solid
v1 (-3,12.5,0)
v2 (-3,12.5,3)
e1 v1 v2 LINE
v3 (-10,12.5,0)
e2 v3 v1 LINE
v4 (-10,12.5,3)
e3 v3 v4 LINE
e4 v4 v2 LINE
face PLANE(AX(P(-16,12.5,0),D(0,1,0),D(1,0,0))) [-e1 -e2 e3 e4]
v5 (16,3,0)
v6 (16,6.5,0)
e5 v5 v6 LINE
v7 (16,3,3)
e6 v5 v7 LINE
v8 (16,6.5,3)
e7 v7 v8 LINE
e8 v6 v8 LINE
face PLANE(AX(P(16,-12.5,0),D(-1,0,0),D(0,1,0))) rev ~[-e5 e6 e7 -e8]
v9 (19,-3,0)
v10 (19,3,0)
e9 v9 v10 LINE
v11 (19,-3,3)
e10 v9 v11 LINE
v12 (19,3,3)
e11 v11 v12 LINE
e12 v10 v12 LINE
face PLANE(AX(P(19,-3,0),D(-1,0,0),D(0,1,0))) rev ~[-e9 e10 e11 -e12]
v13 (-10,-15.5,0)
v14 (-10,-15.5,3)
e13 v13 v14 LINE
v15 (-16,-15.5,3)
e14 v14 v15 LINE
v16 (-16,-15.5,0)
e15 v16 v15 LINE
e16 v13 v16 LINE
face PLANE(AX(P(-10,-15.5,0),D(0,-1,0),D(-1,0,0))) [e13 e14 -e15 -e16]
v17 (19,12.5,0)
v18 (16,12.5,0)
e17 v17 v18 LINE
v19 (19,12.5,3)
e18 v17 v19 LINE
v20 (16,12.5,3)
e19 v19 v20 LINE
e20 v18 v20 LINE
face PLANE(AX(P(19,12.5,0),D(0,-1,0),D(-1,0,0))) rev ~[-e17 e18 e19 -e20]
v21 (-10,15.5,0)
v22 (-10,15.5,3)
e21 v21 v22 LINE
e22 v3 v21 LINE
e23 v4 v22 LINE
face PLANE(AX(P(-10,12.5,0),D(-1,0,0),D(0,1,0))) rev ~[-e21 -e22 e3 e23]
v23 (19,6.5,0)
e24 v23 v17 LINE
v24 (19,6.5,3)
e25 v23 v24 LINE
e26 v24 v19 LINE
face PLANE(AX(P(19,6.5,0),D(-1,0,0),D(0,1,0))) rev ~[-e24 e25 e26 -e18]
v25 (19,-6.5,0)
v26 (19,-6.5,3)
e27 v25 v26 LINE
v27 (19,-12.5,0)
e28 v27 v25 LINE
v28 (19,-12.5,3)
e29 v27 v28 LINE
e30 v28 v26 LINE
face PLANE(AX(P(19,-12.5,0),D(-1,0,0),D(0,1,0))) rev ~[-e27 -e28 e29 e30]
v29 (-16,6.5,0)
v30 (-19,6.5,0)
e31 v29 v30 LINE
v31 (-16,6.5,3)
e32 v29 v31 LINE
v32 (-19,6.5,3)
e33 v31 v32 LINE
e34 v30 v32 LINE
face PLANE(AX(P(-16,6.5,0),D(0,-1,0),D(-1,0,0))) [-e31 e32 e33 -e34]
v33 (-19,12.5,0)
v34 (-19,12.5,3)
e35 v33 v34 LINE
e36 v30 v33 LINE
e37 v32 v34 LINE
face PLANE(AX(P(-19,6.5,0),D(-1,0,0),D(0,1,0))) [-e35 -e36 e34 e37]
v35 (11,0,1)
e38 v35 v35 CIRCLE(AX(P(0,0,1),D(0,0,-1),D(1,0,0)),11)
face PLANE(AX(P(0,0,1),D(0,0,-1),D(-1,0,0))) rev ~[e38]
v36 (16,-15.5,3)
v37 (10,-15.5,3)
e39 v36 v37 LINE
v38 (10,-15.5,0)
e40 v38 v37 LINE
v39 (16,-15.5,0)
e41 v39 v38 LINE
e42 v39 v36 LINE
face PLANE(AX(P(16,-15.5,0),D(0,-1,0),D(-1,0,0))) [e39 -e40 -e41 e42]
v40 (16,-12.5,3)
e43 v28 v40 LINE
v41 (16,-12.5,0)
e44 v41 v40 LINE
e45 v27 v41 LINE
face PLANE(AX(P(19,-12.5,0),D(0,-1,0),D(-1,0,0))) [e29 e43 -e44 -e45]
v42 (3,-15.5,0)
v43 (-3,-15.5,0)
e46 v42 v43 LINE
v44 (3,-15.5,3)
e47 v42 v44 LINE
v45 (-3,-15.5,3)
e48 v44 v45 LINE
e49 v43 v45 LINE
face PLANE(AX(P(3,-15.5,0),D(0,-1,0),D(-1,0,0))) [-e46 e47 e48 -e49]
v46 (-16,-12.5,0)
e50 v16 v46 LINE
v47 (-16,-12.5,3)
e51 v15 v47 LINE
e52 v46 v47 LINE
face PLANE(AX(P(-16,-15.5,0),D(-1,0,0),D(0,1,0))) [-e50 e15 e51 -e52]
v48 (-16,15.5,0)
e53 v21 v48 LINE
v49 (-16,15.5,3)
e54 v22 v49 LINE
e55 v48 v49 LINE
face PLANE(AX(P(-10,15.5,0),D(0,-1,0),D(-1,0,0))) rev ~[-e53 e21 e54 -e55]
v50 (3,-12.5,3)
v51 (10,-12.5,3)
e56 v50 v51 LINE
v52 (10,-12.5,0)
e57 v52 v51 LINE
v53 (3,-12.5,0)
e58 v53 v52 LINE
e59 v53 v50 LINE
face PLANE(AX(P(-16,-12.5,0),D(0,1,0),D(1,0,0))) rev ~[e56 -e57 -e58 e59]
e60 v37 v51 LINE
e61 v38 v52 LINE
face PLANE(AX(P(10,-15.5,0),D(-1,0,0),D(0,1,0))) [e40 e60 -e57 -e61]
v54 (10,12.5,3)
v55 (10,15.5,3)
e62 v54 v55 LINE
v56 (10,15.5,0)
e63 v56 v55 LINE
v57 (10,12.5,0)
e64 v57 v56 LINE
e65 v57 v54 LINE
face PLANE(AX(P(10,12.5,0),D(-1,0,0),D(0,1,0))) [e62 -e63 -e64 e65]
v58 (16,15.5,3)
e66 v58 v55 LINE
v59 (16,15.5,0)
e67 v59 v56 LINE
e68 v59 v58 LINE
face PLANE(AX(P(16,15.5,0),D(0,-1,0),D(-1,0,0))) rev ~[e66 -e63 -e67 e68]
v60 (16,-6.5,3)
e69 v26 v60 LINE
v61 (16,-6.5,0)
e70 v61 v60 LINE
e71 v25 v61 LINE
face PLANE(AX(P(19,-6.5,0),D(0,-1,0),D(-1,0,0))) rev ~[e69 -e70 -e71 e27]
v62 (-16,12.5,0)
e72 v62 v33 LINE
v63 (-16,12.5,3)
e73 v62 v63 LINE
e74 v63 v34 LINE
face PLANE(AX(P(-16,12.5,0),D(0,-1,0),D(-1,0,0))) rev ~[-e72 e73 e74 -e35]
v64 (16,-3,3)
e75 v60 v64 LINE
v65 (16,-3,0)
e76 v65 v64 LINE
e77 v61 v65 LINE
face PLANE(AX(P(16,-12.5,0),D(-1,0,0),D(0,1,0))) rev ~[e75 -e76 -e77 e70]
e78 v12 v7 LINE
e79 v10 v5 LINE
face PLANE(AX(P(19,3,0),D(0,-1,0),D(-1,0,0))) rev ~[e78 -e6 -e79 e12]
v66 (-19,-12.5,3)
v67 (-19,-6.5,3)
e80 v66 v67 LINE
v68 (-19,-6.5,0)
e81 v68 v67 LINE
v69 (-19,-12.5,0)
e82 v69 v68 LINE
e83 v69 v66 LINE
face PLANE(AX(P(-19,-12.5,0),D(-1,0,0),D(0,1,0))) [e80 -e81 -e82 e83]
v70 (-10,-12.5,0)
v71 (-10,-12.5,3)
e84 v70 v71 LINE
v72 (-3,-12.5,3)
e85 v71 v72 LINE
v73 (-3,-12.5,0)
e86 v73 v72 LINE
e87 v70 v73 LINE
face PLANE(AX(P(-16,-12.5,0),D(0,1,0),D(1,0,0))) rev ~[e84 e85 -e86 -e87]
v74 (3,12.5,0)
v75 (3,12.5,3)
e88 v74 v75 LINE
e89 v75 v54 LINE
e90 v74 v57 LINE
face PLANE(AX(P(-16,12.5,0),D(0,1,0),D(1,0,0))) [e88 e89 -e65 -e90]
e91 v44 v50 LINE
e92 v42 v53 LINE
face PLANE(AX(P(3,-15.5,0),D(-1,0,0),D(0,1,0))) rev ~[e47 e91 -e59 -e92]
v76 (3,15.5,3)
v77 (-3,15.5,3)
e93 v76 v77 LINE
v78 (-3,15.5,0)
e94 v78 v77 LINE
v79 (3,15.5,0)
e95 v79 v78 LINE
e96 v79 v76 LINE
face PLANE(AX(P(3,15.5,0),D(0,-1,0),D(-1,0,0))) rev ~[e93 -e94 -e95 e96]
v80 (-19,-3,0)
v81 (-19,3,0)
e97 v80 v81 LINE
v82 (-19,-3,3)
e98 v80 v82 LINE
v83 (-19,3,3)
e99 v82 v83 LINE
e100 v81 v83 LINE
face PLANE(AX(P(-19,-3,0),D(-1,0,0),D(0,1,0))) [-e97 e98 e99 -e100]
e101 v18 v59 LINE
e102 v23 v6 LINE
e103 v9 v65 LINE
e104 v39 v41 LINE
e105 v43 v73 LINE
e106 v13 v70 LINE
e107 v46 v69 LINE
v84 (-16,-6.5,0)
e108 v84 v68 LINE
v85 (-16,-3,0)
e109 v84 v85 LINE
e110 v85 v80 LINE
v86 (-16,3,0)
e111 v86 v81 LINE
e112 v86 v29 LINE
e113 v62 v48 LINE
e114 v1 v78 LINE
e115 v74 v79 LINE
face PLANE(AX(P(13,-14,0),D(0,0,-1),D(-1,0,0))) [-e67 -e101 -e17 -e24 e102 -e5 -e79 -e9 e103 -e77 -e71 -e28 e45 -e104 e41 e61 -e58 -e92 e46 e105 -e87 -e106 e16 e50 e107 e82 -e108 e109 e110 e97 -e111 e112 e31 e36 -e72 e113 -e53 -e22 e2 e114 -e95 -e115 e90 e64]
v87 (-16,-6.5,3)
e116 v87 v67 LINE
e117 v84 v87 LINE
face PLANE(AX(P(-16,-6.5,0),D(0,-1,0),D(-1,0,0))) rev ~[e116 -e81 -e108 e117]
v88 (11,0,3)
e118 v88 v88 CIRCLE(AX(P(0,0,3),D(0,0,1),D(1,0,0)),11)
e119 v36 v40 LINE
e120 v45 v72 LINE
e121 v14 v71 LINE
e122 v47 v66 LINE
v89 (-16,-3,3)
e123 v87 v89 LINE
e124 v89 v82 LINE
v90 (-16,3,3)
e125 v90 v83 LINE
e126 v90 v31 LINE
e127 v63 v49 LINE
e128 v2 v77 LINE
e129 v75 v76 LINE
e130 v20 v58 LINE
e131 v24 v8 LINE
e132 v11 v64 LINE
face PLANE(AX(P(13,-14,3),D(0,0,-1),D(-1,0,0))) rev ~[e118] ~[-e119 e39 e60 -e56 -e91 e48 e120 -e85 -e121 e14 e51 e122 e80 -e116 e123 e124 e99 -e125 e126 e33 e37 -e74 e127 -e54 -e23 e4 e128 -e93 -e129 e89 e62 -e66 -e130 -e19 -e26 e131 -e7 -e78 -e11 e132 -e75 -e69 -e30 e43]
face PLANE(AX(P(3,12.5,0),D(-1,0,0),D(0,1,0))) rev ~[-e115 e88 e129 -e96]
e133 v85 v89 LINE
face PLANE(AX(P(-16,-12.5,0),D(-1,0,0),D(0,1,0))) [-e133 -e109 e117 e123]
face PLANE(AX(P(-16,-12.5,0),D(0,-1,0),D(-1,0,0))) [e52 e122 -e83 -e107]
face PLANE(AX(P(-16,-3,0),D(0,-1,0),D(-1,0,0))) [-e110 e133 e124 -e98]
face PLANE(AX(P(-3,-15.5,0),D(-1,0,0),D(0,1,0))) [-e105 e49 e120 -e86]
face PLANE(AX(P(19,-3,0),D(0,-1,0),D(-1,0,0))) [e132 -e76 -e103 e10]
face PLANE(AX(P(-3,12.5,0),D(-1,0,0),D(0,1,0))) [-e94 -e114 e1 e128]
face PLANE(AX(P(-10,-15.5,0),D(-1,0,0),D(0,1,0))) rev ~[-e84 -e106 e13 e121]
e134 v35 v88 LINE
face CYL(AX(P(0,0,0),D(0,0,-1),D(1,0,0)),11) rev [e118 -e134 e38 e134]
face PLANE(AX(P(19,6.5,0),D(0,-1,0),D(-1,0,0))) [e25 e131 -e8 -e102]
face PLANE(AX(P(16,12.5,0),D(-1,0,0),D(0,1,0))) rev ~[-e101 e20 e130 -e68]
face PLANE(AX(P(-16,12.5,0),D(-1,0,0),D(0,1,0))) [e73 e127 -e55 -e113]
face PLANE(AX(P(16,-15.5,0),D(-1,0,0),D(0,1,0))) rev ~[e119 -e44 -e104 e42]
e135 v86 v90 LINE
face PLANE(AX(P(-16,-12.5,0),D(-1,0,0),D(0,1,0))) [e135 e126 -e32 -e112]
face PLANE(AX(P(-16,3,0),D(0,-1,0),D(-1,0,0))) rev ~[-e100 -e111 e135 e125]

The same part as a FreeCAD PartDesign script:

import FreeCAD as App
import Part
import Sketcher
Q = App.Units.Quantity


def add_polygon(sketch, points):
    """Adds a closed chain of lines whose ends are joined by coincident constraints."""
    first, n = sketch.GeometryCount, len(points)
    for a, b in zip(points, points[1:] + points[:1]):
        sketch.addGeometry(Part.LineSegment(App.Vector(*a, 0), App.Vector(*b, 0)), False)
    for i in range(n):
        sketch.addConstraint(Sketcher.Constraint("Coincident", first + i, 2, first + (i + 1) % n, 1))

doc = App.newDocument("Part")
body = doc.addObject("PartDesign::Body", "Body")

# Sketch on XY plane
sketch1 = body.newObject("Sketcher::SketchObject", "Sketch")
sketch1.AttachmentSupport = (doc.getObject("XY_Plane"), [""])
sketch1.MapMode = "FlatFace"
add_polygon(sketch1, [(-16, 12), (-16, -12), (16, -12), (16, 12)])  # lines 0-3
sketch1.addGeometry(Part.Circle(App.Vector(0, 0, 0), App.Vector(0, 0, 1), 11), False)  # 4
sketch1.addConstraint([
    Sketcher.Constraint("Vertical", 0),
    Sketcher.Constraint("Horizontal", 1),
    Sketcher.Constraint("Vertical", 2),
    Sketcher.Constraint("Horizontal", 3),
    Sketcher.Constraint("Coincident", 4, 3, -1, 1),
    Sketcher.Constraint("Symmetric", 0, 2, 2, 2, -1, 1),
    Sketcher.Constraint("Diameter", 4, Q("22 mm")),
    Sketcher.Constraint("DistanceX", 1, 1, 1, 2, Q("32 mm")),
    Sketcher.Constraint("DistanceY", 0, 2, 0, 1, Q("25 mm")),
])
pad1 = body.newObject("PartDesign::Pad", "Pad")
pad1.Profile = sketch1
pad1.Length = 3

# Sketch on XY plane
sketch2 = body.newObject("Sketcher::SketchObject", "Sketch001")
sketch2.AttachmentSupport = (doc.getObject("XY_Plane"), [""])
sketch2.MapMode = "FlatFace"
sketch2.addGeometry(Part.Circle(App.Vector(0, 0, 0), App.Vector(0, 0, 1), 11), False)
sketch2.addConstraint([
    Sketcher.Constraint("Coincident", 0, 3, -1, 1),
    Sketcher.Constraint("Diameter", 0, Q("22 mm")),
])
pad2 = body.newObject("PartDesign::Pad", "Pad001")
pad2.Profile = sketch2
pad2.Length = 1

# Sketch on XY plane
sketch3 = body.newObject("Sketcher::SketchObject", "Sketch002")
sketch3.AttachmentSupport = (doc.getObject("XY_Plane"), [""])
sketch3.MapMode = "FlatFace"
add_polygon(sketch3, [(16, -12.5), (16, -15.5), (10, -15.5), (10, -12.5)])  # lines 0-3
add_polygon(sketch3, [(19, -6.5), (19, -12.5), (16, -12.5), (16, -6.5)])  # lines 4-7
add_polygon(sketch3, [(19, 3), (19, -3), (16, -3), (16, 3)])  # lines 8-11
add_polygon(sketch3, [(19, 12.5), (19, 6.5), (16, 6.5), (16, 12.5)])  # lines 12-15
add_polygon(sketch3, [(3, 15.5), (3, 12.5), (-3, 12.5), (-3, 15.5)])  # lines 16-19
add_polygon(sketch3, [(-10, 15.5), (-10, 12.5), (-16, 12.5), (-16, 15.5)])  # lines 20-23
add_polygon(sketch3, [(-16, 12.5), (-16, 6.5), (-19, 6.5), (-19, 12.5)])  # lines 24-27
add_polygon(sketch3, [(-16, 3), (-16, -3), (-19, -3), (-19, 3)])  # lines 28-31
add_polygon(sketch3, [(-16, -6.5), (-16, -12.5), (-19, -12.5), (-19, -6.5)])  # lines 32-35
add_polygon(sketch3, [(-10, -12.5), (-10, -15.5), (-16, -15.5), (-16, -12.5)])  # lines 36-39
add_polygon(sketch3, [(3, -12.5), (3, -15.5), (-3, -15.5), (-3, -12.5)])  # lines 40-43
add_polygon(sketch3, [(16, 15.5), (16, 12.5), (10, 12.5), (10, 15.5)])  # lines 44-47
sketch3.addConstraint([
    Sketcher.Constraint("Vertical", 0),
    Sketcher.Constraint("Horizontal", 1),
    Sketcher.Constraint("Vertical", 2),
    Sketcher.Constraint("Horizontal", 3),
    Sketcher.Constraint("Vertical", 4),
    Sketcher.Constraint("Horizontal", 5),
    Sketcher.Constraint("Vertical", 6),
    Sketcher.Constraint("Horizontal", 7),
    Sketcher.Constraint("Vertical", 8),
    Sketcher.Constraint("Horizontal", 9),
    Sketcher.Constraint("Vertical", 10),
    Sketcher.Constraint("Horizontal", 11),
    Sketcher.Constraint("Vertical", 12),
    Sketcher.Constraint("Horizontal", 13),
    Sketcher.Constraint("Vertical", 14),
    Sketcher.Constraint("Horizontal", 15),
    Sketcher.Constraint("Vertical", 16),
    Sketcher.Constraint("Horizontal", 17),
    Sketcher.Constraint("Vertical", 18),
    Sketcher.Constraint("Horizontal", 19),
    Sketcher.Constraint("Vertical", 20),
    Sketcher.Constraint("Horizontal", 21),
    Sketcher.Constraint("Vertical", 22),
    Sketcher.Constraint("Horizontal", 23),
    Sketcher.Constraint("Vertical", 24),
    Sketcher.Constraint("Horizontal", 25),
    Sketcher.Constraint("Vertical", 26),
    Sketcher.Constraint("Horizontal", 27),
    Sketcher.Constraint("Vertical", 28),
    Sketcher.Constraint("Horizontal", 29),
    Sketcher.Constraint("Vertical", 30),
    Sketcher.Constraint("Horizontal", 31),
    Sketcher.Constraint("Vertical", 32),
    Sketcher.Constraint("Horizontal", 33),
    Sketcher.Constraint("Vertical", 34),
    Sketcher.Constraint("Horizontal", 35),
    Sketcher.Constraint("Vertical", 36),
    Sketcher.Constraint("Horizontal", 37),
    Sketcher.Constraint("Vertical", 38),
    Sketcher.Constraint("Horizontal", 39),
    Sketcher.Constraint("Vertical", 40),
    Sketcher.Constraint("Horizontal", 41),
    Sketcher.Constraint("Vertical", 42),
    Sketcher.Constraint("Horizontal", 43),
    Sketcher.Constraint("Vertical", 44),
    Sketcher.Constraint("Horizontal", 45),
    Sketcher.Constraint("Vertical", 46),
    Sketcher.Constraint("Horizontal", 47),
    Sketcher.Constraint("Coincident", 5, 2, 3, 2),
    Sketcher.Constraint("Coincident", 27, 2, 21, 2),
    Sketcher.Constraint("Coincident", 38, 2, 32, 2),
    Sketcher.Constraint("Coincident", 44, 2, 14, 2),
    Sketcher.Constraint("Symmetric", 2, 2, 20, 2, -1, 1),
    Sketcher.Constraint("Symmetric", 0, 2, 22, 2, -1, 1),
    Sketcher.Constraint("Symmetric", 7, 2, 25, 2, -1, 1),
    Sketcher.Constraint("Symmetric", 10, 2, 28, 2, -1, 1),
    Sketcher.Constraint("Symmetric", 8, 2, 30, 2, -1, 1),
    Sketcher.Constraint("Symmetric", 14, 2, 32, 2, -1, 1),
    Sketcher.Constraint("Symmetric", 12, 2, 34, 2, -1, 1),
    Sketcher.Constraint("Symmetric", 18, 2, 40, 2, -1, 1),
    Sketcher.Constraint("Symmetric", 16, 2, 42, 2, -1, 1),
    Sketcher.Constraint("Symmetric", 36, 2, 46, 2, -1, 1),
    Sketcher.Constraint("Symmetric", 14, 2, 21, 2, -2),
    Sketcher.Constraint("Symmetric", 12, 2, 25, 2, -2),
    Sketcher.Constraint("Symmetric", 1, 2, 36, 2, -2),
    Sketcher.Constraint("Horizontal", 15, 2, 16, 2),
    Sketcher.Constraint("Horizontal", 19, 2, 22, 2),
    Sketcher.Constraint("Horizontal", 9, 2, 28, 2),
    Sketcher.Constraint("Vertical", 7, 2, 8, 2),
    Sketcher.Constraint("Vertical", 6, 2, 9, 2),
    Sketcher.Constraint("Vertical", 19, 2, 40, 2),
    Sketcher.Constraint("Equal", 3, 17),
    Sketcher.Constraint("Equal", 35, 0),
    Sketcher.Constraint("Equal", 47, 4),
    Sketcher.Constraint("Equal", 6, 8),
    Sketcher.Constraint("DistanceX", 1, 2, 1, 1, Q("6 mm")),
    Sketcher.Constraint("DistanceX", 5, 2, 5, 1, Q("3 mm")),
    Sketcher.Constraint("DistanceX", -1, 1, 0, 2, Q("16 mm")),
    Sketcher.Constraint("DistanceY", 7, 2, 12, 2, Q("13 mm")),
])
pad3 = body.newObject("PartDesign::Pad", "Pad002")
pad3.Profile = sketch3
pad3.Length = 3

doc.recompute()
